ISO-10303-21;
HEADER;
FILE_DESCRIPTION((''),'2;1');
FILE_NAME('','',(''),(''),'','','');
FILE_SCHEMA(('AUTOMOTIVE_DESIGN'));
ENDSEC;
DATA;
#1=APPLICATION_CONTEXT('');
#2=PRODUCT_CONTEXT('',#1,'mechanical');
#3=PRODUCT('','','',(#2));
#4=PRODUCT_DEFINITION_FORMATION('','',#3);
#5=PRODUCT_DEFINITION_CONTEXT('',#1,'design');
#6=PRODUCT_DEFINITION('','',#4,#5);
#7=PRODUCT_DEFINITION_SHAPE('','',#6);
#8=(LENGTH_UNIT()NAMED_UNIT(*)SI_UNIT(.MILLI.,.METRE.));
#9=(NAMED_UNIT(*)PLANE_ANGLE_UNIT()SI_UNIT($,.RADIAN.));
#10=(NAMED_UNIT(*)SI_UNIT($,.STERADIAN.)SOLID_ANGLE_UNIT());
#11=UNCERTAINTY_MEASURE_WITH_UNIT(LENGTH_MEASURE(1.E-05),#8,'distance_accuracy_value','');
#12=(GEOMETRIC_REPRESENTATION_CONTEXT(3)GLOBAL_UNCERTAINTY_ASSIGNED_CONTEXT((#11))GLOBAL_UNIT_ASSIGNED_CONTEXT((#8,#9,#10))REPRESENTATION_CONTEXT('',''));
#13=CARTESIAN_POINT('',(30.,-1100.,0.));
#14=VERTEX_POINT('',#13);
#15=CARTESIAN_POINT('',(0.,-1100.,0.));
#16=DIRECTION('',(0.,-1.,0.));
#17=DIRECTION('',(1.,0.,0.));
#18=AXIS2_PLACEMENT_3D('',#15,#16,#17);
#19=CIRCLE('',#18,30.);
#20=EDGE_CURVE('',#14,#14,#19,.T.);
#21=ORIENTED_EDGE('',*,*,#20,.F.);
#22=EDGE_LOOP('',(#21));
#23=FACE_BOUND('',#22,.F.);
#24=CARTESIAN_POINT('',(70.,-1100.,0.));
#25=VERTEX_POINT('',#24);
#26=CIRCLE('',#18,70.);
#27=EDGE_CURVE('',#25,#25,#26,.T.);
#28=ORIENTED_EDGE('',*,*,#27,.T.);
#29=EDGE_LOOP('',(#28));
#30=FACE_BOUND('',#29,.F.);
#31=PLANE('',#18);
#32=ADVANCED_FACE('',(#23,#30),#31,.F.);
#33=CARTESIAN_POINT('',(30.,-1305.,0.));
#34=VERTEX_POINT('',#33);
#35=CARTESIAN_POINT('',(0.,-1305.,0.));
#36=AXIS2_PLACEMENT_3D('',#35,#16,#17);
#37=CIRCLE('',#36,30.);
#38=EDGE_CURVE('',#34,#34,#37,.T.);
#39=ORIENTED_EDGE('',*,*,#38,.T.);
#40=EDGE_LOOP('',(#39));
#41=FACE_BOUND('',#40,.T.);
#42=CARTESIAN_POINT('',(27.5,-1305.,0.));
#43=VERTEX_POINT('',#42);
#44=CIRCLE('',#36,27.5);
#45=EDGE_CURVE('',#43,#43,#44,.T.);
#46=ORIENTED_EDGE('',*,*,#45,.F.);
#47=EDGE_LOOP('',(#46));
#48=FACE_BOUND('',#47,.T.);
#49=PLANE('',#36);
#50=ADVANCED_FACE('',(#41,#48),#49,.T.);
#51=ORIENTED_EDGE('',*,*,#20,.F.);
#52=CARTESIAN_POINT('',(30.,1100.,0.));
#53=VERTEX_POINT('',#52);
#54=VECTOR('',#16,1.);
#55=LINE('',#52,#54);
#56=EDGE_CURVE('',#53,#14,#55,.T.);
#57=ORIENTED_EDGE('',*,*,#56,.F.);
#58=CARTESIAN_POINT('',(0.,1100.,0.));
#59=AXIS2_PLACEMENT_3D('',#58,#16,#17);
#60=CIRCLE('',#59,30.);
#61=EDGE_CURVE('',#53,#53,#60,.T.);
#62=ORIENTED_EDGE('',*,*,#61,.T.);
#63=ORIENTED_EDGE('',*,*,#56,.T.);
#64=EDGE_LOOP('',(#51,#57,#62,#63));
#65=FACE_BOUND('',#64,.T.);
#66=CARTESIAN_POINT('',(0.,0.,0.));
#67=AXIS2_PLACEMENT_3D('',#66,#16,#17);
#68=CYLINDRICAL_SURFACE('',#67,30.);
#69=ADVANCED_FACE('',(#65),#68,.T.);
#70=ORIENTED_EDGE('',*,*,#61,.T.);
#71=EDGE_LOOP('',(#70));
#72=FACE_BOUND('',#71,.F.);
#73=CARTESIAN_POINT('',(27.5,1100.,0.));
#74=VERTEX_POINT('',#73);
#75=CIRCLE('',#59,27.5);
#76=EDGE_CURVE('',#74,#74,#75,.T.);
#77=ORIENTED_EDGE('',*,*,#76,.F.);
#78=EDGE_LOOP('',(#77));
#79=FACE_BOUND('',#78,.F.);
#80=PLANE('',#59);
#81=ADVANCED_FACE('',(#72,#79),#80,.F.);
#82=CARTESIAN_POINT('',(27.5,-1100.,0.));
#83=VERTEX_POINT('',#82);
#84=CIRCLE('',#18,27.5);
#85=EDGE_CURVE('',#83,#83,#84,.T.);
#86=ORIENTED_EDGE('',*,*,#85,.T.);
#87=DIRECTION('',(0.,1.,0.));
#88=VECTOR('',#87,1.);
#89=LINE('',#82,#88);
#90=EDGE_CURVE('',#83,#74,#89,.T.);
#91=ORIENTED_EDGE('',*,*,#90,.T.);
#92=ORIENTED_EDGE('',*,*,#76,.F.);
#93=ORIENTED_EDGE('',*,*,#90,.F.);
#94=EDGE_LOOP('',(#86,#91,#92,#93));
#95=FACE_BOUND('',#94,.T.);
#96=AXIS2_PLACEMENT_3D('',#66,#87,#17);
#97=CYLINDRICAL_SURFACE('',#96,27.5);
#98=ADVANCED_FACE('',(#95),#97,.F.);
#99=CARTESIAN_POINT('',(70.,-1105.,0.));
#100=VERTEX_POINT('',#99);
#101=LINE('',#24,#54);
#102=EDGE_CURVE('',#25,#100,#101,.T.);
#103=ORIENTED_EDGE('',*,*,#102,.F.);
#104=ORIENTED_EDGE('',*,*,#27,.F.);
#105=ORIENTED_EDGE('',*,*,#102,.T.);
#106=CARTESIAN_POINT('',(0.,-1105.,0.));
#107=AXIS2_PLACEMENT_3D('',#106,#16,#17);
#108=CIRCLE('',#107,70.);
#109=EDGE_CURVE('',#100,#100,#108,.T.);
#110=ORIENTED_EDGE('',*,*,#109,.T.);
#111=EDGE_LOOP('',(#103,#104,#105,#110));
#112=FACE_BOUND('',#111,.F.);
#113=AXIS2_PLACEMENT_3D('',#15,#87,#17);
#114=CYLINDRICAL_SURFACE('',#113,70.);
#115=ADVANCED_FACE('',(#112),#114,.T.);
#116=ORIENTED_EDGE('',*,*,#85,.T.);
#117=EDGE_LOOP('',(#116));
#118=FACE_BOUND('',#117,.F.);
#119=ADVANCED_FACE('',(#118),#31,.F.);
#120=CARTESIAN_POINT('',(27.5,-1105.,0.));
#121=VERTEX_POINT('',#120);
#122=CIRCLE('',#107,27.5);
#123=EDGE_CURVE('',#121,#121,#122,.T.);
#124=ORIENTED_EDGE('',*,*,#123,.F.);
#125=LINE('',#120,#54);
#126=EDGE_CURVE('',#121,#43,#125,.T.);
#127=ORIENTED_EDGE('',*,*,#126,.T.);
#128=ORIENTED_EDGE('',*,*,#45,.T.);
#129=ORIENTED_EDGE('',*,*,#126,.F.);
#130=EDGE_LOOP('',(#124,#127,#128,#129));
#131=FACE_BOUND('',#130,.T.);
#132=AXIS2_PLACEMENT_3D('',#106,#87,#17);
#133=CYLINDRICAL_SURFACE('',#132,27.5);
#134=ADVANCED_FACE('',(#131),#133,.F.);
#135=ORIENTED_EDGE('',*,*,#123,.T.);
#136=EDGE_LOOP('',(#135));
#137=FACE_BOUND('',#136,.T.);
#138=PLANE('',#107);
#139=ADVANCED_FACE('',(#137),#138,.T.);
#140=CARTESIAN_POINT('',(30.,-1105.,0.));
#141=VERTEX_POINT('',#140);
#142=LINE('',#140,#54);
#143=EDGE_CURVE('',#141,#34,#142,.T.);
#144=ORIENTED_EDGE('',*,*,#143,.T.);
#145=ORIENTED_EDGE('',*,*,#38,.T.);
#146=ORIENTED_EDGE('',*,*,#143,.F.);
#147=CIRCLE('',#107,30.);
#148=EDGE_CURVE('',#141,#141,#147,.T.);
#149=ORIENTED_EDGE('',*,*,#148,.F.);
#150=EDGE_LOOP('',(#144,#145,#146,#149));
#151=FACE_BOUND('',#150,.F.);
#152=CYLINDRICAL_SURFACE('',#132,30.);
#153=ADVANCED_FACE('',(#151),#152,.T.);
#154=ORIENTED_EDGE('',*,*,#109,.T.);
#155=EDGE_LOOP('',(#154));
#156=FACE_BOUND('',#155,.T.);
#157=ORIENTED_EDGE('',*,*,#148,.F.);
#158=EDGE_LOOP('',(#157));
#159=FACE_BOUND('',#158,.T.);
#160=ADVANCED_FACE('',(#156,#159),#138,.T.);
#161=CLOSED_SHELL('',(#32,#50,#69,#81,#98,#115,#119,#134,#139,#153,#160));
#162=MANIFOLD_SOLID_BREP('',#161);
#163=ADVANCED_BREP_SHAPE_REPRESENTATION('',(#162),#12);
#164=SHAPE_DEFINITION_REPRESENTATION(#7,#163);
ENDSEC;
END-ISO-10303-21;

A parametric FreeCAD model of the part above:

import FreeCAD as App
import Part
import Sketcher
Q = App.Units.Quantity

doc = App.newDocument("Part")
body = doc.addObject("PartDesign::Body", "Body")

sketch1 = body.newObject("Sketcher::SketchObject", "Sketch")
sketch1.AttachmentSupport = (doc.getObject("XZ_Plane"), [""])
sketch1.MapMode = "FlatFace"
sketch1.addGeometry(Part.Circle(App.Vector(0, 0, 0), App.Vector(0, 0, 1), 30), False)
sketch1.addGeometry(Part.Circle(App.Vector(0, 0, 0), App.Vector(0, 0, 1), 28), False)
sketch1.addConstraint(Sketcher.Constraint("Coincident", 0, 3, -1, 1))
sketch1.addConstraint(Sketcher.Constraint("Coincident", 1, 3, -1, 1))
sketch1.addConstraint(Sketcher.Constraint("Diameter", 0, Q("60 mm")))
sketch1.addConstraint(Sketcher.Constraint("Diameter", 1, Q("55 mm")))
pad1 = body.newObject("PartDesign::Pad", "Pad")
pad1.Profile = sketch1
pad1.Length = 2200
pad1.Midplane = True

sketch2 = body.newObject("Sketcher::SketchObject", "Sketch001")
sketch2.AttachmentSupport = (doc.getObject("XZ_Plane"), [""])
sketch2.MapMode = "FlatFace"
sketch2.AttachmentOffset = App.Placement(App.Vector(0, 0, 1100), App.Rotation())
sketch2.addGeometry(Part.Circle(App.Vector(0, 0, 0), App.Vector(0, 0, 1), 70), False)
sketch2.addConstraint(Sketcher.Constraint("Coincident", 0, 3, -1, 1))
sketch2.addConstraint(Sketcher.Constraint("Diameter", 0, Q("140 mm")))
pad2 = body.newObject("PartDesign::Pad", "Pad001")
pad2.Profile = sketch2
pad2.Length = 5

sketch3 = body.newObject("Sketcher::SketchObject", "Sketch002")
sketch3.AttachmentSupport = (doc.getObject("XZ_Plane"), [""])
sketch3.MapMode = "FlatFace"
sketch3.AttachmentOffset = App.Placement(App.Vector(0, 0, 1105), App.Rotation())
sketch3.addGeometry(Part.Circle(App.Vector(0, 0, 0), App.Vector(0, 0, 1), 30), False)
sketch3.addGeometry(Part.Circle(App.Vector(0, 0, 0), App.Vector(0, 0, 1), 28), False)
sketch3.addConstraint(Sketcher.Constraint("Coincident", 0, 3, -1, 1))
sketch3.addConstraint(Sketcher.Constraint("Coincident", 1, 3, -1, 1))
sketch3.addConstraint(Sketcher.Constraint("Diameter", 0, Q("60 mm")))
sketch3.addConstraint(Sketcher.Constraint("Diameter", 1, Q("55 mm")))
pad3 = body.newObject("PartDesign::Pad", "Pad002")
pad3.Profile = sketch3
pad3.Length = 200

doc.recompute()
